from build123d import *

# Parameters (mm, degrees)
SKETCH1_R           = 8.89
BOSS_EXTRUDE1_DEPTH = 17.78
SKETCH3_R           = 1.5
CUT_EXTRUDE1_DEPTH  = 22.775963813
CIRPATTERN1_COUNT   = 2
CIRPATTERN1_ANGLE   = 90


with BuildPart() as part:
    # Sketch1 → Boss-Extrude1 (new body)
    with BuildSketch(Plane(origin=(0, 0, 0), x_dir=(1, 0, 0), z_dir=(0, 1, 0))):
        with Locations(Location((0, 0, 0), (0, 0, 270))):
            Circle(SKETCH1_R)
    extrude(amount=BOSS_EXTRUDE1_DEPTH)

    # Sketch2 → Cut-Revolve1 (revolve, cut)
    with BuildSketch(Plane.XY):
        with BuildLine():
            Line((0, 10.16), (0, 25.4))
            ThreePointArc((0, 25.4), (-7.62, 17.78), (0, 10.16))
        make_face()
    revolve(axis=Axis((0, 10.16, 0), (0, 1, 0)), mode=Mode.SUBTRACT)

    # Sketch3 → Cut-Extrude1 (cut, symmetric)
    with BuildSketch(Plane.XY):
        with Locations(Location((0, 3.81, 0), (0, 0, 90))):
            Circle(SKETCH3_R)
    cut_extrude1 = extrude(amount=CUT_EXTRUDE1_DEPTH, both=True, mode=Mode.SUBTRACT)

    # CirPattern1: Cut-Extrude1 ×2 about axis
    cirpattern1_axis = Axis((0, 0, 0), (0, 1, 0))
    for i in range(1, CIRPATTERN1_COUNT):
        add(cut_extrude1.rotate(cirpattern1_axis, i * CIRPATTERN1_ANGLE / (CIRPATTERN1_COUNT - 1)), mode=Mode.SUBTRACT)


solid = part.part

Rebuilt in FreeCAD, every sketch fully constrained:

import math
import FreeCAD as App
import Part
import Sketcher

V = App.Vector
Q = App.Units.Quantity

doc = App.newDocument("Part")
body = doc.addObject("PartDesign::Body", "Body")

# Sketch on XZ plane
sketch1 = doc.addObject("Sketcher::SketchObject", "Sketch")
body.addObject(sketch1)
sketch1.AttachmentSupport = (doc.XZ_Plane, [""])
sketch1.MapMode = "FlatFace"
sketch1.addGeometry(Part.Circle(V(0, 0, 0), V(0, 0, 1), 9), False)
sketch1.addConstraint(Sketcher.Constraint("Coincident", 0, 3, -1, 1))
sketch1.addConstraint(Sketcher.Constraint("Diameter", 0, Q("0.7 in")))
pad1 = doc.addObject("PartDesign::Pad", "Pad")
body.addObject(pad1)
pad1.Profile = sketch1
pad1.Length = Q("0.7 in")
pad1.Reversed = True

# Sketch on XY plane
sketch2 = doc.addObject("Sketcher::SketchObject", "Sketch001")
body.addObject(sketch2)
sketch2.AttachmentSupport = (doc.XY_Plane, [""])
sketch2.MapMode = "FlatFace"
sketch2.addGeometry(Part.LineSegment(V(0, 10, 0), V(0, 25, 0)), False)
sketch2.addGeometry(Part.ArcOfCircle(Part.Circle(V(0, 18, 0), V(0, 0, 1), 8), math.radians(90), math.radians(270)), False)
sketch2.addConstraint(Sketcher.Constraint("Coincident", 0, 1, 1, 2))
sketch2.addConstraint(Sketcher.Constraint("Coincident", 1, 1, 0, 2))
sketch2.addConstraint(Sketcher.Constraint("Vertical", 0))
sketch2.addConstraint(Sketcher.Constraint("PointOnObject", 1, 3, -2))
sketch2.addConstraint(Sketcher.Constraint("PointOnObject", 0, 1, -2))
sketch2.addConstraint(Sketcher.Constraint("Radius", 1, Q("0.3 in")))
sketch2.addConstraint(Sketcher.Constraint("DistanceY", -1, 1, 1, 1, Q("1 in")))
groove = doc.addObject("PartDesign::Groove", "Groove")
body.addObject(groove)
groove.Profile = sketch2
groove.ReferenceAxis = (sketch2, ["V_Axis"])
groove.Angle = 360

# Sketch on XY plane
sketch3 = doc.addObject("Sketcher::SketchObject", "Sketch002")
body.addObject(sketch3)
sketch3.AttachmentSupport = (doc.XY_Plane, [""])
sketch3.MapMode = "FlatFace"
sketch3.addGeometry(Part.Circle(V(0, 3.8, 0), V(0, 0, 1), 1.5), False)
sketch3.addConstraint(Sketcher.Constraint("PointOnObject", 0, 3, -2))
sketch3.addConstraint(Sketcher.Constraint("Diameter", 0, Q("3 mm")))
sketch3.addConstraint(Sketcher.Constraint("DistanceY", -1, 1, 0, 3, Q("0.15 in")))
pocket1 = doc.addObject("PartDesign::Pocket", "Pocket")
body.addObject(pocket1)
pocket1.Profile = sketch3
pocket1.Length = 45.551928
pocket1.Midplane = True
doc.recompute()

polarpattern = doc.addObject("PartDesign::PolarPattern", "PolarPattern")
body.addObject(polarpattern)
polarpattern.Originals = [pocket1]
polarpattern.Axis = (doc.Y_Axis, [""])
polarpattern.Angle = 90
polarpattern.Occurrences = 2
body.Tip = polarpattern

doc.recompute()
